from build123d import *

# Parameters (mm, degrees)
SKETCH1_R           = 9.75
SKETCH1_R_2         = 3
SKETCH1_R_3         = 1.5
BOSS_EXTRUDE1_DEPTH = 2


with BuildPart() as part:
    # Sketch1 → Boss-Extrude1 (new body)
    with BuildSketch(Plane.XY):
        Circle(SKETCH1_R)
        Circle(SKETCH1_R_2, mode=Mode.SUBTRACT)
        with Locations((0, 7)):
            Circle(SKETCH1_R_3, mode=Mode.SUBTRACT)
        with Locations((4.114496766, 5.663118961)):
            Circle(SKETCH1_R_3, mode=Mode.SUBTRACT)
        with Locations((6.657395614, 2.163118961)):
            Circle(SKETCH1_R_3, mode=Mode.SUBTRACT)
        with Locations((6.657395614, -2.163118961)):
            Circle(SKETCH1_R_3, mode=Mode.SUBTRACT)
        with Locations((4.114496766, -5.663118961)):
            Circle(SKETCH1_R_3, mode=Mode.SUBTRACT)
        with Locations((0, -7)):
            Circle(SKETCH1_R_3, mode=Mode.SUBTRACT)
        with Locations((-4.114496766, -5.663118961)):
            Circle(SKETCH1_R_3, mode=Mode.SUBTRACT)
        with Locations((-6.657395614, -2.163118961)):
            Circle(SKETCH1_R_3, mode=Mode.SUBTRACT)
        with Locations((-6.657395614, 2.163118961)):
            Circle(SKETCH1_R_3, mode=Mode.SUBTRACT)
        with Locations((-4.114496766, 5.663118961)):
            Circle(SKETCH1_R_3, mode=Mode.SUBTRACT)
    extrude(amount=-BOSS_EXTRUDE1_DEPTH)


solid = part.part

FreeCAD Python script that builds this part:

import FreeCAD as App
import Part
import Sketcher

V = App.Vector

doc = App.newDocument("Part")
body = doc.addObject("PartDesign::Body", "Body")

# Sketch on XY plane
sketch1 = body.newObject("Sketcher::SketchObject", "Sketch")
sketch1.AttachmentSupport = (doc.getObject("XY_Plane"), [""])
sketch1.MapMode = "FlatFace"
sketch1.addGeometry([
    Part.Circle(V(0, 0, 0), V(0, 0, 1), 9.75),  # 0
    Part.Circle(V(-4.114497, -5.663119, 0), V(0, 0, 1), 1.5),  # 1
    Part.Circle(V(-6.657396, -2.163119, 0), V(0, 0, 1), 1.5),  # 2
    Part.Circle(V(0, -7, 0), V(0, 0, 1), 1.5),  # 3
    Part.Circle(V(4.114497, -5.663119, 0), V(0, 0, 1), 1.5),  # 4
    Part.Circle(V(6.657396, -2.163119, 0), V(0, 0, 1), 1.5),  # 5
    Part.Circle(V(-6.657396, 2.163119, 0), V(0, 0, 1), 1.5),  # 6
    Part.Circle(V(-4.114497, 5.663119, 0), V(0, 0, 1), 1.5),  # 7
    Part.Circle(V(0, 0, 0), V(0, 0, 1), 3),  # 8
    Part.Circle(V(6.657396, 2.163119, 0), V(0, 0, 1), 1.5),  # 9
    Part.Circle(V(0, 7, 0), V(0, 0, 1), 1.5),  # 10
    Part.Circle(V(4.114497, 5.663119, 0), V(0, 0, 1), 1.5),  # 11
], False)
sketch1.addConstraint([
    Sketcher.Constraint("Coincident", 0, 3, -1, 1),
    Sketcher.Constraint("Coincident", 8, 3, -1, 1),
    Sketcher.Constraint("Equal", 1, 2),
    Sketcher.Constraint("Equal", 2, 3),
    Sketcher.Constraint("Equal", 3, 4),
    Sketcher.Constraint("Equal", 4, 5),
    Sketcher.Constraint("Equal", 5, 6),
    Sketcher.Constraint("Equal", 6, 7),
    Sketcher.Constraint("Equal", 7, 9),
    Sketcher.Constraint("Equal", 9, 10),
    Sketcher.Constraint("Equal", 10, 11),
    Sketcher.Constraint("Symmetric", 5, 3, 6, 3, -1, 1),
    Sketcher.Constraint("Symmetric", 4, 3, 7, 3, -1, 1),
    Sketcher.Constraint("Symmetric", 2, 3, 9, 3, -1, 1),
    Sketcher.Constraint("Symmetric", 3, 3, 10, 3, -1, 1),
    Sketcher.Constraint("Symmetric", 1, 3, 11, 3, -1, 1),
    Sketcher.Constraint("Symmetric", 1, 3, 4, 3, -2),
    Sketcher.Constraint("Symmetric", 2, 3, 5, 3, -2),
    Sketcher.Constraint("PointOnObject", 3, 3, -2),
    Sketcher.Constraint("Diameter", 1, 3.0),
    Sketcher.Constraint("Diameter", 8, 6.0),
    Sketcher.Constraint("Diameter", 0, 19.5),
    Sketcher.Constraint("DistanceY", 3, 3, -1, 1, 7.0),
    Sketcher.Constraint("DistanceY", 1, 3, 2, 3, 3.5),
    Sketcher.Constraint("DistanceX", 2, 3, 1, 3, 2.542899),
    Sketcher.Constraint("DistanceY", 1, 3, -1, 1, 5.663119),
    Sketcher.Constraint("DistanceX", 2, 3, 5, 3, 13.314791),
])
pad1 = body.newObject("PartDesign::Pad", "Pad")
pad1.Profile = sketch1
pad1.Length = 2
pad1.Reversed = True

doc.recompute()
